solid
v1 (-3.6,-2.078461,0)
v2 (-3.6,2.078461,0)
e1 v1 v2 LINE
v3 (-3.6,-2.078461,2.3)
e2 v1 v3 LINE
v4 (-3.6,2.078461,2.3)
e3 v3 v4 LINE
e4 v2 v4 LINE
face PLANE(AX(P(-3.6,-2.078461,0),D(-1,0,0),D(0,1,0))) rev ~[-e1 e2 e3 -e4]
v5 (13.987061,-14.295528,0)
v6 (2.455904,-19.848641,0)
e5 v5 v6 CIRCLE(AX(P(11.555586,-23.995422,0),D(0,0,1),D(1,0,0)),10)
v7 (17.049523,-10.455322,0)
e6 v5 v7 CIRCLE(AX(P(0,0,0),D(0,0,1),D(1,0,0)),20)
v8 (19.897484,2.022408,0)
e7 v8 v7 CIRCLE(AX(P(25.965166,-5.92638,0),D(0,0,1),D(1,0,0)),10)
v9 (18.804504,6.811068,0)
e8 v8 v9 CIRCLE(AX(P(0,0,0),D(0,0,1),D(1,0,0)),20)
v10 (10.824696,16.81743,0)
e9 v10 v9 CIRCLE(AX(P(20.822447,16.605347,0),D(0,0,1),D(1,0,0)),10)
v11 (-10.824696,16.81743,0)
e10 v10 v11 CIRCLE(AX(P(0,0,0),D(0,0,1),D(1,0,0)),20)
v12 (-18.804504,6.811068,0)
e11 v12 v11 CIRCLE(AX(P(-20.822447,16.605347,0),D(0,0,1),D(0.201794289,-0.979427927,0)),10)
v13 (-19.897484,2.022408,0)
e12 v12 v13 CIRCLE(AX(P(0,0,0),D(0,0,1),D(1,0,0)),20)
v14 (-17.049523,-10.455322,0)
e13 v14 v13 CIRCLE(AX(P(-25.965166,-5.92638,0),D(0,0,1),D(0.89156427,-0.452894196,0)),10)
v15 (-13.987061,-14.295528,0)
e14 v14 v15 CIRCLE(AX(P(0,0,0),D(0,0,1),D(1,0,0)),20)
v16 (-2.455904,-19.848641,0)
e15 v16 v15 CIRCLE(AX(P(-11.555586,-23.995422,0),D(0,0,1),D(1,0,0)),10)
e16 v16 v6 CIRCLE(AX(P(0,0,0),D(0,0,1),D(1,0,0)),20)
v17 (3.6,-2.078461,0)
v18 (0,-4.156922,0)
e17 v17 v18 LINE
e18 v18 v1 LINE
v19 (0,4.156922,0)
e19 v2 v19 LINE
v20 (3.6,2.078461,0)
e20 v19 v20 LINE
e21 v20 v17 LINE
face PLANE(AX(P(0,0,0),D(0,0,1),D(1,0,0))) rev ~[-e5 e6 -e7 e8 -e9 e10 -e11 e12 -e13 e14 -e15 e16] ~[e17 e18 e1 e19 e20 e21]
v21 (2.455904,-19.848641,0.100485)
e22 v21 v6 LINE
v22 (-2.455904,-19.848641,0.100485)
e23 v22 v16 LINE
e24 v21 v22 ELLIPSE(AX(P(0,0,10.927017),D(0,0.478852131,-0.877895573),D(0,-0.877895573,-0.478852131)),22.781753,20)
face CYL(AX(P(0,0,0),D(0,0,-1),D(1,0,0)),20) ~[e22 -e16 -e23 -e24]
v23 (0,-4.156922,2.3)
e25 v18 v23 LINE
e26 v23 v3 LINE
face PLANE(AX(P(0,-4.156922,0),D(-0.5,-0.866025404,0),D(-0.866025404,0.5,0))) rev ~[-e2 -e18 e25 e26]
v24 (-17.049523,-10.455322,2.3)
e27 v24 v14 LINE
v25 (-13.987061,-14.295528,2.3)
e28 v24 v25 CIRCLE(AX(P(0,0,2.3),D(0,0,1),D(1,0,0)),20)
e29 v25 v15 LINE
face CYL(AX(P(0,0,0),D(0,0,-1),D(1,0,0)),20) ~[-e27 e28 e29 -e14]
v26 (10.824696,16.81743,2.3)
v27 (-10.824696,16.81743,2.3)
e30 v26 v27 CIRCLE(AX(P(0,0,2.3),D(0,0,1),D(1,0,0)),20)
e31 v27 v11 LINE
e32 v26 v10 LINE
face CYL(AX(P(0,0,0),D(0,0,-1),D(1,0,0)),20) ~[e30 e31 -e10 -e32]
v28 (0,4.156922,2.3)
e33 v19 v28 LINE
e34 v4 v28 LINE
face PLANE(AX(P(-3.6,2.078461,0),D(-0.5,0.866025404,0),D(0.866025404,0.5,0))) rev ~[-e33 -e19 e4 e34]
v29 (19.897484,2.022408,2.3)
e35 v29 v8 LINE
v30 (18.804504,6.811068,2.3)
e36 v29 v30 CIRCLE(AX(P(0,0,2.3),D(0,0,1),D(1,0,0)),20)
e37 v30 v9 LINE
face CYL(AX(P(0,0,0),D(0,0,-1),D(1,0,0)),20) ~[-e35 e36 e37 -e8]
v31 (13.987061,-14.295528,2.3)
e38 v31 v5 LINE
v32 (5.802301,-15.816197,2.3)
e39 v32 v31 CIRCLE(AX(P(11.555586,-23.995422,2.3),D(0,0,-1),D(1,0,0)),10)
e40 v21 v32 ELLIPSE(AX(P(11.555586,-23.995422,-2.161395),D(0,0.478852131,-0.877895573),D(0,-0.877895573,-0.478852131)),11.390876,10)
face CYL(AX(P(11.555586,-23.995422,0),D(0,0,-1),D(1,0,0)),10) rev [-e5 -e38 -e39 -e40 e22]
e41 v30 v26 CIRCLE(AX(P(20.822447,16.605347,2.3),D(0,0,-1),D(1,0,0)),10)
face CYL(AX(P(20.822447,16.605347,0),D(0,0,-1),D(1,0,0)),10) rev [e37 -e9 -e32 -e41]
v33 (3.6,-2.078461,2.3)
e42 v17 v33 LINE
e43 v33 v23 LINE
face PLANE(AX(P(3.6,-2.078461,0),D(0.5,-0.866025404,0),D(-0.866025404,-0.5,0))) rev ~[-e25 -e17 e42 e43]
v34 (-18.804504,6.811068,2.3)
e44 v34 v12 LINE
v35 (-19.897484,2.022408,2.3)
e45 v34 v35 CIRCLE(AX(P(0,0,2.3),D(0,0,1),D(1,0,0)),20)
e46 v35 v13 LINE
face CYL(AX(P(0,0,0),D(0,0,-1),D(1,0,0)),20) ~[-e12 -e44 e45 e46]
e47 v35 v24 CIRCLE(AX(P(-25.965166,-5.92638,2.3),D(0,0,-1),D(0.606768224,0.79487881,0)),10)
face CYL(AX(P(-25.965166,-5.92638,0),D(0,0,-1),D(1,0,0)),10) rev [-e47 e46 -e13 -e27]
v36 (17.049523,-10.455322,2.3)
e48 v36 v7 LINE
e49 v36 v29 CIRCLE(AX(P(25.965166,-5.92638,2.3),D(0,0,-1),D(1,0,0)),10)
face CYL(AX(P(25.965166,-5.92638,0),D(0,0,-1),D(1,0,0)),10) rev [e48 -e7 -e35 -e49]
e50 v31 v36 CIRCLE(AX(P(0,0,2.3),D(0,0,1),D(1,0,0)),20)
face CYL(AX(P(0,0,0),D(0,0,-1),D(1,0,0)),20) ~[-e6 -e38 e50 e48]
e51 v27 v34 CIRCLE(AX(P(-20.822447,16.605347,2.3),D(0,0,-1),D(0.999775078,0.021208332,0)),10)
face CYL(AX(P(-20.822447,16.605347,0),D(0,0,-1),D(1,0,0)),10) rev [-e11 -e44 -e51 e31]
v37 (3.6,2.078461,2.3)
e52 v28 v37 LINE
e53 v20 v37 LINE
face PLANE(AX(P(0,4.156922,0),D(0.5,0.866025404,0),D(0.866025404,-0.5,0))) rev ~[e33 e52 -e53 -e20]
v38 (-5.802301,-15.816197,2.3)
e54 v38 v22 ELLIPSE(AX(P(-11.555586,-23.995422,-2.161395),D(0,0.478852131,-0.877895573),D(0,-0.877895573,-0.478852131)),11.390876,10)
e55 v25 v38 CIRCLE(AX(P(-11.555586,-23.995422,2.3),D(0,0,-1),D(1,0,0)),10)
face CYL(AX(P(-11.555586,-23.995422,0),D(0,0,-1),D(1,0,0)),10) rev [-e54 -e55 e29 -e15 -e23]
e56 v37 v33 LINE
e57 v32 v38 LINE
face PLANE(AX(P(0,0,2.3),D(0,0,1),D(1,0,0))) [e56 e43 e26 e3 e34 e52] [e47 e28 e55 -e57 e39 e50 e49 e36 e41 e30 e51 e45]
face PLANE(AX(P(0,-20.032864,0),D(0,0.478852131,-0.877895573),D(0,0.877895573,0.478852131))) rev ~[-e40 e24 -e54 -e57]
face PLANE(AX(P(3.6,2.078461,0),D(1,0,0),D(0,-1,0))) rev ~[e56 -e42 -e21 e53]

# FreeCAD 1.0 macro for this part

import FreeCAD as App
import Part
import Sketcher
Q = App.Units.Quantity

doc = App.newDocument("Part")
body = doc.addObject("PartDesign::Body", "Body")

# Sketch on XY plane
sketch1 = body.newObject("Sketcher::SketchObject", "Sketch")
sketch1.AttachmentSupport = (doc.getObject("XY_Plane"), [""])
sketch1.MapMode = "FlatFace"
sketch1.addGeometry(Part.Circle(App.Vector(0, 0, 0), App.Vector(0, 0, 1), 20), False)
sketch1.addGeometry(Part.LineSegment(App.Vector(-3.6, 2.078461, 0), App.Vector(0, 4.156922, 0)), False)
sketch1.addGeometry(Part.LineSegment(App.Vector(0, 4.156922, 0), App.Vector(3.6, 2.078461, 0)), False)
sketch1.addGeometry(Part.LineSegment(App.Vector(3.6, 2.078461, 0), App.Vector(3.6, -2.078461, 0)), False)
sketch1.addGeometry(Part.LineSegment(App.Vector(3.6, -2.078461, 0), App.Vector(0, -4.156922, 0)), False)
sketch1.addGeometry(Part.LineSegment(App.Vector(0, -4.156922, 0), App.Vector(-3.6, -2.078461, 0)), False)
sketch1.addGeometry(Part.LineSegment(App.Vector(-3.6, -2.078461, 0), App.Vector(-3.6, 2.078461, 0)), False)
sketch1.addConstraint(Sketcher.Constraint("Coincident", 1, 2, 2, 1))
sketch1.addConstraint(Sketcher.Constraint("Coincident", 2, 2, 3, 1))
sketch1.addConstraint(Sketcher.Constraint("Coincident", 3, 2, 4, 1))
sketch1.addConstraint(Sketcher.Constraint("Coincident", 4, 2, 5, 1))
sketch1.addConstraint(Sketcher.Constraint("Coincident", 5, 2, 6, 1))
sketch1.addConstraint(Sketcher.Constraint("Coincident", 6, 2, 1, 1))
sketch1.addConstraint(Sketcher.Constraint("Vertical", 3))
sketch1.addConstraint(Sketcher.Constraint("Vertical", 6))
sketch1.addConstraint(Sketcher.Constraint("Coincident", 0, 3, -1, 1))
sketch1.addConstraint(Sketcher.Constraint("Symmetric", 1, 2, 4, 2, -1, 1))
sketch1.addConstraint(Sketcher.Constraint("Symmetric", 2, 2, 5, 2, -1, 1))
sketch1.addConstraint(Sketcher.Constraint("PointOnObject", 1, 2, -2))
sketch1.addConstraint(Sketcher.Constraint("Parallel", 1, 4))
sketch1.addConstraint(Sketcher.Constraint("Horizontal", 3, 2, 5, 2))
sketch1.addConstraint(Sketcher.Constraint("Diameter", 0, 40.0))
sketch1.addConstraint(Sketcher.Constraint("Angle", 1, Q("30 deg")))
sketch1.addConstraint(Sketcher.Constraint("DistanceX", -1, 1, 2, 2, 3.6))
sketch1.addConstraint(Sketcher.Constraint("DistanceY", 3, 2, 3, 1, 4.156922))
pad1 = body.newObject("PartDesign::Pad", "Pad")
pad1.Profile = sketch1
pad1.Length = 2.3

# Sketch on XY plane
sketch2 = body.newObject("Sketcher::SketchObject", "Sketch001")
sketch2.AttachmentSupport = (doc.getObject("XY_Plane"), [""])
sketch2.MapMode = "FlatFace"
sketch2.addGeometry(Part.Circle(App.Vector(-20.822447, 16.605347, 0), App.Vector(0, 0, 1), 10), False)
sketch2.addGeometry(Part.Circle(App.Vector(-25.965166, -5.92638, 0), App.Vector(0, 0, 1), 10), False)
sketch2.addGeometry(Part.Circle(App.Vector(-11.555586, -23.995422, 0), App.Vector(0, 0, 1), 10), False)
sketch2.addGeometry(Part.Circle(App.Vector(11.555586, -23.995422, 0), App.Vector(0, 0, 1), 10), False)
sketch2.addGeometry(Part.Circle(App.Vector(25.965166, -5.92638, 0), App.Vector(0, 0, 1), 10), False)
sketch2.addGeometry(Part.Circle(App.Vector(20.822447, 16.605347, 0), App.Vector(0, 0, 1), 10), False)
sketch2.addConstraint(Sketcher.Constraint("Equal", 0, 1))
sketch2.addConstraint(Sketcher.Constraint("Equal", 1, 2))
sketch2.addConstraint(Sketcher.Constraint("Equal", 2, 3))
sketch2.addConstraint(Sketcher.Constraint("Equal", 3, 4))
sketch2.addConstraint(Sketcher.Constraint("Equal", 4, 5))
sketch2.addConstraint(Sketcher.Constraint("Symmetric", 2, 3, 3, 3, -2))
sketch2.addConstraint(Sketcher.Constraint("Symmetric", 1, 3, 4, 3, -2))
sketch2.addConstraint(Sketcher.Constraint("Symmetric", 0, 3, 5, 3, -2))
sketch2.addConstraint(Sketcher.Constraint("Diameter", 0, 20.0))
sketch2.addConstraint(Sketcher.Constraint("DistanceY", 1, 3, -1, 1, 5.92638))
sketch2.addConstraint(Sketcher.Constraint("DistanceY", 2, 3, -1, 1, 23.995422))
sketch2.addConstraint(Sketcher.Constraint("DistanceX", 1, 3, 0, 3, 5.14272))
sketch2.addConstraint(Sketcher.Constraint("DistanceX", 1, 3, 2, 3, 14.40958))
sketch2.addConstraint(Sketcher.Constraint("DistanceY", 2, 3, 0, 3, 40.600769))
sketch2.addConstraint(Sketcher.Constraint("DistanceX", 0, 3, -1, 1, 20.822447))
pocket1 = body.newObject("PartDesign::Pocket", "Pocket")
pocket1.Profile = sketch2
pocket1.Type = "ThroughAll"
pocket1.Reversed = True

# Sketch on YZ plane
sketch3 = body.newObject("Sketcher::SketchObject", "Sketch002")
sketch3.AttachmentSupport = (doc.getObject("YZ_Plane"), [""])
sketch3.MapMode = "FlatFace"
sketch3.addGeometry(Part.LineSegment(App.Vector(-20.032864, 3, 0), App.Vector(-20.032864, 0, 0)), False)
sketch3.addGeometry(Part.LineSegment(App.Vector(-20.032864, 0, 0), App.Vector(-14.532864, 3, 0)), False)
sketch3.addGeometry(Part.LineSegment(App.Vector(-14.532864, 3, 0), App.Vector(-20.032864, 3, 0)), False)
sketch3.addConstraint(Sketcher.Constraint("Coincident", 0, 2, 1, 1))
sketch3.addConstraint(Sketcher.Constraint("Coincident", 1, 2, 2, 1))
sketch3.addConstraint(Sketcher.Constraint("Coincident", 2, 2, 0, 1))
sketch3.addConstraint(Sketcher.Constraint("Vertical", 0))
sketch3.addConstraint(Sketcher.Constraint("Horizontal", 2))
sketch3.addConstraint(Sketcher.Constraint("PointOnObject", 0, 2, -1))
sketch3.addConstraint(Sketcher.Constraint("DistanceY", 0, 2, 0, 1, 3.0))
sketch3.addConstraint(Sketcher.Constraint("DistanceX", 2, 2, 2, 1, 5.5))
sketch3.addConstraint(Sketcher.Constraint("DistanceX", 0, 2, -1, 1, 20.032864))
pocket2 = body.newObject("PartDesign::Pocket", "Pocket001")
pocket2.Profile = sketch3
pocket2.Length = 12
pocket2.Midplane = True

doc.recompute()
